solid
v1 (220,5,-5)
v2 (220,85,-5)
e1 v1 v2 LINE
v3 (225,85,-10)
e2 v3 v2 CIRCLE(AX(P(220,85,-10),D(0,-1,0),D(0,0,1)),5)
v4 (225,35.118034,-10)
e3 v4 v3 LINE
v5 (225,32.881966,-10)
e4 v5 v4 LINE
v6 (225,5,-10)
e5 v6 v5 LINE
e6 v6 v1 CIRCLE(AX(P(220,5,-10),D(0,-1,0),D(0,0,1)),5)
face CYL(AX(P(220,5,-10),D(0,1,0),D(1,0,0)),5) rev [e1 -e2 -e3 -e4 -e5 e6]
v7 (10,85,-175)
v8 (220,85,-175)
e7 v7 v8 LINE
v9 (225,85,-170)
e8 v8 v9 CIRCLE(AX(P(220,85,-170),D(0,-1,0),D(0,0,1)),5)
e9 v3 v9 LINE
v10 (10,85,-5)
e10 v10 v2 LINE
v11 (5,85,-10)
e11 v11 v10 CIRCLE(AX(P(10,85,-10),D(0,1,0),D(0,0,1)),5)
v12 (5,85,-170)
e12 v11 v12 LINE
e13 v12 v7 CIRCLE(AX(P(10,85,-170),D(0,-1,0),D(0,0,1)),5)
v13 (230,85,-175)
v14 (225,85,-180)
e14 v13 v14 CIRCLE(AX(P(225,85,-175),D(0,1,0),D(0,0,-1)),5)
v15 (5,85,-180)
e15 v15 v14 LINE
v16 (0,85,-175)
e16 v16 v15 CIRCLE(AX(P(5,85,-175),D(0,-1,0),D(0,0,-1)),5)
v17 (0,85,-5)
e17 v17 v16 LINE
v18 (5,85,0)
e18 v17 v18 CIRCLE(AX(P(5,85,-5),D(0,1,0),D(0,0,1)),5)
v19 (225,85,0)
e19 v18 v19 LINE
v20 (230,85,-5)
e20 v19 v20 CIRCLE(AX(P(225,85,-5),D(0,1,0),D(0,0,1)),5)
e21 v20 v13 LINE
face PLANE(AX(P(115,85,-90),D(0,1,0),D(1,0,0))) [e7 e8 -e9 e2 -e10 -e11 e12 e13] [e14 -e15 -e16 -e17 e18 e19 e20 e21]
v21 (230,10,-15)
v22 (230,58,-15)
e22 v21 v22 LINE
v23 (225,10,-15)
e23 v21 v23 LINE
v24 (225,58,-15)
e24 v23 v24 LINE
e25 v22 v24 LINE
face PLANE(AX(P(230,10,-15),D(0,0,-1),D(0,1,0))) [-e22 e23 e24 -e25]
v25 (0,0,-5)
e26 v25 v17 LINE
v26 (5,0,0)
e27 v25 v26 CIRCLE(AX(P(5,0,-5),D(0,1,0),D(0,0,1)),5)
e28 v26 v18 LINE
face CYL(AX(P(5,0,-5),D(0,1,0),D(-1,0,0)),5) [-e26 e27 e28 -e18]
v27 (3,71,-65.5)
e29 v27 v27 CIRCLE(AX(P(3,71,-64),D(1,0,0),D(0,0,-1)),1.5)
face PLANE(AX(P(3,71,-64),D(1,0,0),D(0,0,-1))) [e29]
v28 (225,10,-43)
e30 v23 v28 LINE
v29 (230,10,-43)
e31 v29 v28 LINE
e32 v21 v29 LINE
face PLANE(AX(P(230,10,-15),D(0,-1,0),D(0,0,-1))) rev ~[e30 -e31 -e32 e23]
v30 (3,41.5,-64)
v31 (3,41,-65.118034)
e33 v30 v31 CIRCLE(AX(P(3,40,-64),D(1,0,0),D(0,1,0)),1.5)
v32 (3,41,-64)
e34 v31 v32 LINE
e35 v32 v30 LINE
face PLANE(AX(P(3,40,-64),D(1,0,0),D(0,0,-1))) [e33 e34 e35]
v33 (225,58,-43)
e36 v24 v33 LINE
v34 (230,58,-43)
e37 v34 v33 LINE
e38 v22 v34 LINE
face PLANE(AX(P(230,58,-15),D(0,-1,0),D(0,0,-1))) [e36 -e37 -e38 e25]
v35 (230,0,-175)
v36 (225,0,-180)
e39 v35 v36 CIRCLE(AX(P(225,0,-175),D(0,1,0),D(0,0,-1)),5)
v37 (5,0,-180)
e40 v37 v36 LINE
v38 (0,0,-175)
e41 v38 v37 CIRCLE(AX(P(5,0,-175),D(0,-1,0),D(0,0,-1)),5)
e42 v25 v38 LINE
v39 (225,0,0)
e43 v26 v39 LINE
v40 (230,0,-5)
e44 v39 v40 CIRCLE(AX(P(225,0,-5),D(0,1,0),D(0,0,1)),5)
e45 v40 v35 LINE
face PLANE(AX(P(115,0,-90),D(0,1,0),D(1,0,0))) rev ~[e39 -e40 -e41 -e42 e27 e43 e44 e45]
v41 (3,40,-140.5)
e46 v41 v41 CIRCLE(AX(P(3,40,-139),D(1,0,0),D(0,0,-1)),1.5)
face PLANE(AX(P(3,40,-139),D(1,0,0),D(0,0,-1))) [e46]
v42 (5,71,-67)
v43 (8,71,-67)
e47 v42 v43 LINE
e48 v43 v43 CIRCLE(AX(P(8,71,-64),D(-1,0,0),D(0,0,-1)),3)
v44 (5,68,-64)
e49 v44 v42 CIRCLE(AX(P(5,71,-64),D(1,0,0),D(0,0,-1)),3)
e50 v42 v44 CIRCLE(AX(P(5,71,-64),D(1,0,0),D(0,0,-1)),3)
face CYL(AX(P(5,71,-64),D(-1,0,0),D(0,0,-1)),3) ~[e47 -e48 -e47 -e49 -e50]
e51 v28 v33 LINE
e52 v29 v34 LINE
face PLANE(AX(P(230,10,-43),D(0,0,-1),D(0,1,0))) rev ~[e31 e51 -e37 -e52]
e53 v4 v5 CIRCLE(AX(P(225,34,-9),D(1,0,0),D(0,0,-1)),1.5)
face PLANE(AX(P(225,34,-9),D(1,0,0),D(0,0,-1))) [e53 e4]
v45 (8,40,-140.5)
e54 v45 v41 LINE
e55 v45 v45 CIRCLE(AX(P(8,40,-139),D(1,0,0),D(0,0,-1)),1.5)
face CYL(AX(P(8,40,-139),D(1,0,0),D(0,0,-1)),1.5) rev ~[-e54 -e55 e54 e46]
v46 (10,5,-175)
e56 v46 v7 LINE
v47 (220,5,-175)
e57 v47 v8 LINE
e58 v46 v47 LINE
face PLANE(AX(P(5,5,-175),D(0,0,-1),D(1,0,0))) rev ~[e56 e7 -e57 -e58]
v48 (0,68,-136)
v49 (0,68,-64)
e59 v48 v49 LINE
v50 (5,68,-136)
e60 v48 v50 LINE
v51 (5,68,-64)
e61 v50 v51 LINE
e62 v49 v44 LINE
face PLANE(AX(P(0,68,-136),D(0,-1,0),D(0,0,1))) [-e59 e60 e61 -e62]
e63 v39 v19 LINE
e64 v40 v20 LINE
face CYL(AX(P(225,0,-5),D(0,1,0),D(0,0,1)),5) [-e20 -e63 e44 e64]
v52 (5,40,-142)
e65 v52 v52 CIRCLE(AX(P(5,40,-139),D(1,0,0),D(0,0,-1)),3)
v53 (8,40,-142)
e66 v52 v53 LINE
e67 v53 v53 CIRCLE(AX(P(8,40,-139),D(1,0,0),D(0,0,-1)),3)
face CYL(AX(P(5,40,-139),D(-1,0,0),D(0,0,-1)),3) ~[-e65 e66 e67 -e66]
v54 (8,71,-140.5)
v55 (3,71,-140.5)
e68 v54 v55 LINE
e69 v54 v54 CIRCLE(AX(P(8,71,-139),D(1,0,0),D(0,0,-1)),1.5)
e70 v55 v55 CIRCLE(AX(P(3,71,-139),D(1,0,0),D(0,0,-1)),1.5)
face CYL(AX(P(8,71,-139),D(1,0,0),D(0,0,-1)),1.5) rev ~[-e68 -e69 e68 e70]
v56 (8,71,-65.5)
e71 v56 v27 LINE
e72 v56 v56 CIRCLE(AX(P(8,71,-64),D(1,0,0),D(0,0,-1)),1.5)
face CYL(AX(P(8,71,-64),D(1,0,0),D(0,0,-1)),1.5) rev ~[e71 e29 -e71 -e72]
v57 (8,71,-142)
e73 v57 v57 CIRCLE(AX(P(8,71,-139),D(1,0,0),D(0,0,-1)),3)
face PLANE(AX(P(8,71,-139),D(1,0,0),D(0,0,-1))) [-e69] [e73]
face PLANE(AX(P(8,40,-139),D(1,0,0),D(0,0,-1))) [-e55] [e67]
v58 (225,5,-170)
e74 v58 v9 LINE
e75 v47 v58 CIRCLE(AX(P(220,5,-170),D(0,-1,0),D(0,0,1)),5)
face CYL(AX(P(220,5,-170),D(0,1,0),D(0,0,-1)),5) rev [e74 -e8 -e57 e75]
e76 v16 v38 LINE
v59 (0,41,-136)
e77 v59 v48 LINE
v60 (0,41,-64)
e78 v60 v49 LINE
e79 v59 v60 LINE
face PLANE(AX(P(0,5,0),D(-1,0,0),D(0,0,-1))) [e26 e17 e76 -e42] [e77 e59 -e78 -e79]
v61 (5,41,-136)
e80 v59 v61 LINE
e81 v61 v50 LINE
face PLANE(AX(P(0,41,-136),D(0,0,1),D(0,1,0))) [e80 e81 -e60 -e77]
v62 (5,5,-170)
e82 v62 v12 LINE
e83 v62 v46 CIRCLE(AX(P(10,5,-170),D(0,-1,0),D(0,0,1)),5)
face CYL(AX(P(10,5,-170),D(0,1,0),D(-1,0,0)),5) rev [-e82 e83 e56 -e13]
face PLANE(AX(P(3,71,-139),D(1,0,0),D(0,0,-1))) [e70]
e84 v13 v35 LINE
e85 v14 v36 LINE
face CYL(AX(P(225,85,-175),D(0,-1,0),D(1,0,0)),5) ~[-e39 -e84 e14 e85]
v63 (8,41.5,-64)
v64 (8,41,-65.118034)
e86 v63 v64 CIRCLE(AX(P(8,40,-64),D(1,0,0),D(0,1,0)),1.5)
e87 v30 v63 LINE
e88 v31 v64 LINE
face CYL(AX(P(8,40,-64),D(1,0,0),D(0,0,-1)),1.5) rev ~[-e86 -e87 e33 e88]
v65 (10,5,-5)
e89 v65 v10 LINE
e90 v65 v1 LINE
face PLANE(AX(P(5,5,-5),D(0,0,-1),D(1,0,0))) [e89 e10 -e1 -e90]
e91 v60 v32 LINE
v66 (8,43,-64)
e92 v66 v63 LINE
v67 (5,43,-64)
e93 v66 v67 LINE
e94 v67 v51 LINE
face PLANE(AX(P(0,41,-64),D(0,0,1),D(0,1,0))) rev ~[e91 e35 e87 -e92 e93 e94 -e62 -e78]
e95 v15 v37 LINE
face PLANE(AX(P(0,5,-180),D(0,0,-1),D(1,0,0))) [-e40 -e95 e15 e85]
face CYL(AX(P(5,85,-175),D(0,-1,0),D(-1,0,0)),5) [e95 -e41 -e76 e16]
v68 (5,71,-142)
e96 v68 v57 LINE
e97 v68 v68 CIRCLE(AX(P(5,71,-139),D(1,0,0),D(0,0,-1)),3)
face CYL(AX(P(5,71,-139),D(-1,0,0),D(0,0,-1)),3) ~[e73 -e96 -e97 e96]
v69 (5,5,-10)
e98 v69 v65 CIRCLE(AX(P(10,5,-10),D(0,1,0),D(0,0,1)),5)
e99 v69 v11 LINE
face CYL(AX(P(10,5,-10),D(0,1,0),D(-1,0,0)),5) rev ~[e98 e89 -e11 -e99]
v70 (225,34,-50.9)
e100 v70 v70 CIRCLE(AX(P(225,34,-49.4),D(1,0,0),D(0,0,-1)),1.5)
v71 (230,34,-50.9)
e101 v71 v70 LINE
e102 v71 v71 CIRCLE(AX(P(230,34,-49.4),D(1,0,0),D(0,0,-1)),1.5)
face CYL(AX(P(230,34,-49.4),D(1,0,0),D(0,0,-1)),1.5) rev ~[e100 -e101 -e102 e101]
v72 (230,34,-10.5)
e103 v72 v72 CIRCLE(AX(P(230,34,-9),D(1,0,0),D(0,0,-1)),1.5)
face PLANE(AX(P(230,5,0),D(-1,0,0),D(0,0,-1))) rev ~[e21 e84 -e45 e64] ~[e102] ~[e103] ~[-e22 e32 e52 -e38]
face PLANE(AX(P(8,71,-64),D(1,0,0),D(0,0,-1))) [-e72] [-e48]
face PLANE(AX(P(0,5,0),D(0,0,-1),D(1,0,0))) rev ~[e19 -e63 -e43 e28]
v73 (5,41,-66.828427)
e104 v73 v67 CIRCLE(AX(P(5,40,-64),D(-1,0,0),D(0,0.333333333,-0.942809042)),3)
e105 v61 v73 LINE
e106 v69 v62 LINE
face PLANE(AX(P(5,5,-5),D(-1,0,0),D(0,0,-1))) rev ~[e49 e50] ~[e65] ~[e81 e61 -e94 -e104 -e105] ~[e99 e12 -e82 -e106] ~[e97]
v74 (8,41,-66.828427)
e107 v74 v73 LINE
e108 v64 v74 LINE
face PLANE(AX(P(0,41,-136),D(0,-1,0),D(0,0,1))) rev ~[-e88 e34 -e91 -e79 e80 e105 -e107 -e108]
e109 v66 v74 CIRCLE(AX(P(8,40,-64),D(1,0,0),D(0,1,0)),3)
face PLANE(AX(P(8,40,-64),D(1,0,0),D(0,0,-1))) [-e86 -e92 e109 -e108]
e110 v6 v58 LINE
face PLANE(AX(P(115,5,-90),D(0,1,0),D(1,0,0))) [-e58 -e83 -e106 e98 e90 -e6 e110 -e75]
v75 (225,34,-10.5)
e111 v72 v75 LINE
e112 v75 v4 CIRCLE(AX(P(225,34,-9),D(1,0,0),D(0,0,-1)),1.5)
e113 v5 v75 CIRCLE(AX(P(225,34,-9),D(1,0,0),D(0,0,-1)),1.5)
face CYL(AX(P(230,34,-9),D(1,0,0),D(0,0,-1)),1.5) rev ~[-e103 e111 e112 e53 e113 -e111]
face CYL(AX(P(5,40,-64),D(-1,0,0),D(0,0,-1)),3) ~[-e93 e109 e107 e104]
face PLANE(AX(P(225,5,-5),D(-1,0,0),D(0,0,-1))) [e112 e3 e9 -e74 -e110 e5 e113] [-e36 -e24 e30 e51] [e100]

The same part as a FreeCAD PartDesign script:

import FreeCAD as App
import Part
import Sketcher
from FreeCAD import Vector


def edges_at(feature, points):
    """Names of the edges that pass closest to the given points."""
    edges = feature.Shape.Edges
    near = lambda p: min(range(len(edges)), key=lambda i: edges[i].distToShape(Part.Vertex(*p))[0])
    return sorted({f"Edge{near(p) + 1}" for p in points})


def add_polygon(sketch, points):
    """Adds a closed chain of lines whose ends are joined by coincident constraints."""
    first, n = sketch.GeometryCount, len(points)
    for a, b in zip(points, points[1:] + points[:1]):
        sketch.addGeometry(Part.LineSegment(App.Vector(*a, 0), App.Vector(*b, 0)), False)
    for i in range(n):
        sketch.addConstraint(Sketcher.Constraint("Coincident", first + i, 2, first + (i + 1) % n, 1))

doc = App.newDocument("Part")
body = doc.addObject("PartDesign::Body", "Body")

# Sketch on XZ plane
sketch1 = body.newObject("Sketcher::SketchObject", "Sketch")
sketch1.AttachmentSupport = (doc.getObject("XZ_Plane"), [""])
sketch1.MapMode = "FlatFace"
add_polygon(sketch1, [(0, -180), (0, 0), (230, 0), (230, -180)])  # lines 0-3
sketch1.addConstraint(Sketcher.Constraint("Vertical", 0))
sketch1.addConstraint(Sketcher.Constraint("Horizontal", 1))
sketch1.addConstraint(Sketcher.Constraint("Vertical", 2))
sketch1.addConstraint(Sketcher.Constraint("Horizontal", 3))
sketch1.addConstraint(Sketcher.Constraint("Coincident", 0, 2, -1, 1))
sketch1.addConstraint(Sketcher.Constraint("DistanceX", 1, 1, 1, 2, 230.0))
sketch1.addConstraint(Sketcher.Constraint("DistanceY", 0, 1, 0, 2, 180.0))
pad1 = body.newObject("PartDesign::Pad", "Pad")
pad1.Profile = sketch1
pad1.Length = 5
pad1.Reversed = True

# Sketch on XZ plane
sketch2 = body.newObject("Sketcher::SketchObject", "Sketch001")
sketch2.AttachmentSupport = (doc.getObject("XZ_Plane"), [""])
sketch2.MapMode = "FlatFace"
sketch2.AttachmentOffset = App.Placement(Vector(0, 0, -5), App.Rotation())
add_polygon(sketch2, [(0, -180), (0, 0), (230, 0), (230, -180)])  # lines 0-3
add_polygon(sketch2, [(225, -5), (5, -5), (5, -175), (225, -175)])  # lines 4-7
sketch2.addConstraint(Sketcher.Constraint("Vertical", 0))
sketch2.addConstraint(Sketcher.Constraint("Horizontal", 1))
sketch2.addConstraint(Sketcher.Constraint("Vertical", 2))
sketch2.addConstraint(Sketcher.Constraint("Horizontal", 3))
sketch2.addConstraint(Sketcher.Constraint("Horizontal", 4))
sketch2.addConstraint(Sketcher.Constraint("Vertical", 5))
sketch2.addConstraint(Sketcher.Constraint("Horizontal", 6))
sketch2.addConstraint(Sketcher.Constraint("Vertical", 7))
sketch2.addConstraint(Sketcher.Constraint("Coincident", 0, 2, -1, 1))
sketch2.addConstraint(Sketcher.Constraint("DistanceX", 1, 1, 1, 2, 230.0))
sketch2.addConstraint(Sketcher.Constraint("DistanceX", 4, 2, 4, 1, 220.0))
sketch2.addConstraint(Sketcher.Constraint("DistanceY", 0, 1, 0, 2, 180.0))
sketch2.addConstraint(Sketcher.Constraint("DistanceY", 5, 2, 5, 1, 170.0))
sketch2.addConstraint(Sketcher.Constraint("DistanceX", -1, 1, 4, 2, 5.0))
sketch2.addConstraint(Sketcher.Constraint("DistanceY", 4, 2, -1, 1, 5.0))
pad2 = body.newObject("PartDesign::Pad", "Pad001")
pad2.Profile = sketch2
pad2.Length = 80
pad2.Reversed = True
doc.recompute()

fillet = body.newObject("PartDesign::Fillet", "Fillet")
fillet.Base = (pad2, edges_at(pad2, [
    (225, 45, -5),
    (225, 45, -175),
    (5, 45, -175),
    (5, 45, -5),
    (0, 42.5, -180),
    (230, 42.5, -180),
    (230, 42.5, 0),
    (0, 42.5, 0),
]))
fillet.Radius = 5

# Sketch on YZ plane
sketch3 = body.newObject("Sketcher::SketchObject", "Sketch002")
sketch3.AttachmentSupport = (doc.getObject("YZ_Plane"), [""])
sketch3.MapMode = "FlatFace"
sketch3.AttachmentOffset = App.Placement(Vector(0, 0, 230), App.Rotation())
add_polygon(sketch3, [(58, -15), (10, -15), (10, -43), (58, -43)])  # lines 0-3
sketch3.addConstraint(Sketcher.Constraint("Horizontal", 0))
sketch3.addConstraint(Sketcher.Constraint("Vertical", 1))
sketch3.addConstraint(Sketcher.Constraint("Horizontal", 2))
sketch3.addConstraint(Sketcher.Constraint("Vertical", 3))
sketch3.addConstraint(Sketcher.Constraint("DistanceX", 0, 2, 0, 1, 48.0))
sketch3.addConstraint(Sketcher.Constraint("DistanceY", 1, 2, 1, 1, 28.0))
sketch3.addConstraint(Sketcher.Constraint("DistanceX", -1, 1, 0, 2, 10.0))
sketch3.addConstraint(Sketcher.Constraint("DistanceY", 0, 2, -1, 1, 15.0))
pocket1 = body.newObject("PartDesign::Pocket", "Pocket")
pocket1.Profile = sketch3
pocket1.Length = 5

# Sketch on YZ plane
sketch4 = body.newObject("Sketcher::SketchObject", "Sketch003")
sketch4.AttachmentSupport = (doc.getObject("YZ_Plane"), [""])
sketch4.MapMode = "FlatFace"
sketch4.AttachmentOffset = App.Placement(Vector(0, 0, 230), App.Rotation())
sketch4.addGeometry(Part.Circle(Vector(34, -9, 0), Vector(0, 0, 1), 1.5), False)
sketch4.addGeometry(Part.Circle(Vector(34, -49.4, 0), Vector(0, 0, 1), 1.5), False)
sketch4.addConstraint(Sketcher.Constraint("Equal", 0, 1))
sketch4.addConstraint(Sketcher.Constraint("Vertical", 0, 3, 1, 3))
sketch4.addConstraint(Sketcher.Constraint("Diameter", 0, 3.0))
sketch4.addConstraint(Sketcher.Constraint("DistanceX", -1, 1, 0, 3, 34.0))
sketch4.addConstraint(Sketcher.Constraint("DistanceY", 0, 3, -1, 1, 9.0))
sketch4.addConstraint(Sketcher.Constraint("DistanceY", 1, 3, -1, 1, 49.4))
pocket2 = body.newObject("PartDesign::Pocket", "Pocket001")
pocket2.Profile = sketch4
pocket2.Length = 5

# Sketch on YZ plane
sketch5 = body.newObject("Sketcher::SketchObject", "Sketch004")
sketch5.AttachmentSupport = (doc.getObject("YZ_Plane"), [""])
sketch5.MapMode = "FlatFace"
sketch5.AttachmentOffset = App.Placement(Vector(0, 0, 5), App.Rotation())
sketch5.addGeometry(Part.Circle(Vector(40, -139, 0), Vector(0, 0, 1), 3), False)
sketch5.addGeometry(Part.Circle(Vector(71, -139, 0), Vector(0, 0, 1), 3), False)
sketch5.addGeometry(Part.Circle(Vector(71, -64, 0), Vector(0, 0, 1), 3), False)
sketch5.addGeometry(Part.Circle(Vector(40, -64, 0), Vector(0, 0, 1), 3), False)
sketch5.addConstraint(Sketcher.Constraint("Equal", 0, 1))
sketch5.addConstraint(Sketcher.Constraint("Equal", 1, 2))
sketch5.addConstraint(Sketcher.Constraint("Equal", 2, 3))
sketch5.addConstraint(Sketcher.Constraint("Horizontal", 0, 3, 1, 3))
sketch5.addConstraint(Sketcher.Constraint("Horizontal", 2, 3, 3, 3))
sketch5.addConstraint(Sketcher.Constraint("Vertical", 1, 3, 2, 3))
sketch5.addConstraint(Sketcher.Constraint("Vertical", 0, 3, 3, 3))
sketch5.addConstraint(Sketcher.Constraint("Diameter", 0, 6.0))
sketch5.addConstraint(Sketcher.Constraint("DistanceX", -1, 1, 0, 3, 40.0))
sketch5.addConstraint(Sketcher.Constraint("DistanceY", 0, 3, -1, 1, 139.0))
sketch5.addConstraint(Sketcher.Constraint("DistanceX", -1, 1, 1, 3, 71.0))
sketch5.addConstraint(Sketcher.Constraint("DistanceY", 2, 3, -1, 1, 64.0))
pad3 = body.newObject("PartDesign::Pad", "Pad002")
pad3.Profile = sketch5
pad3.Length = 3

# Sketch on YZ plane
sketch6 = body.newObject("Sketcher::SketchObject", "Sketch005")
sketch6.AttachmentSupport = (doc.getObject("YZ_Plane"), [""])
sketch6.MapMode = "FlatFace"
add_polygon(sketch6, [(68, -136), (41, -136), (41, -64), (68, -64)])  # lines 0-3
sketch6.addConstraint(Sketcher.Constraint("Horizontal", 0))
sketch6.addConstraint(Sketcher.Constraint("Vertical", 1))
sketch6.addConstraint(Sketcher.Constraint("Horizontal", 2))
sketch6.addConstraint(Sketcher.Constraint("Vertical", 3))
sketch6.addConstraint(Sketcher.Constraint("DistanceX", 0, 2, 0, 1, 27.0))
sketch6.addConstraint(Sketcher.Constraint("DistanceY", 1, 1, 1, 2, 72.0))
sketch6.addConstraint(Sketcher.Constraint("DistanceX", -1, 1, 0, 2, 41.0))
sketch6.addConstraint(Sketcher.Constraint("DistanceY", 0, 2, -1, 1, 136.0))
pocket3 = body.newObject("PartDesign::Pocket", "Pocket002")
pocket3.Profile = sketch6
pocket3.Length = 10
pocket3.Reversed = True

# Sketch on YZ plane
sketch7 = body.newObject("Sketcher::SketchObject", "Sketch006")
sketch7.AttachmentSupport = (doc.getObject("YZ_Plane"), [""])
sketch7.MapMode = "FlatFace"
sketch7.AttachmentOffset = App.Placement(Vector(0, 0, 8), App.Rotation())
sketch7.addGeometry(Part.Circle(Vector(40, -64, 0), Vector(0, 0, 1), 1.5), False)
sketch7.addGeometry(Part.Circle(Vector(40, -139, 0), Vector(0, 0, 1), 1.5), False)
sketch7.addGeometry(Part.Circle(Vector(71, -139, 0), Vector(0, 0, 1), 1.5), False)
sketch7.addGeometry(Part.Circle(Vector(71, -64, 0), Vector(0, 0, 1), 1.5), False)
sketch7.addConstraint(Sketcher.Constraint("Equal", 0, 1))
sketch7.addConstraint(Sketcher.Constraint("Equal", 1, 2))
sketch7.addConstraint(Sketcher.Constraint("Equal", 2, 3))
sketch7.addConstraint(Sketcher.Constraint("Horizontal", 1, 3, 2, 3))
sketch7.addConstraint(Sketcher.Constraint("Horizontal", 0, 3, 3, 3))
sketch7.addConstraint(Sketcher.Constraint("Vertical", 0, 3, 1, 3))
sketch7.addConstraint(Sketcher.Constraint("Vertical", 2, 3, 3, 3))
sketch7.addConstraint(Sketcher.Constraint("Diameter", 0, 3.0))
sketch7.addConstraint(Sketcher.Constraint("DistanceX", -1, 1, 0, 3, 40.0))
sketch7.addConstraint(Sketcher.Constraint("DistanceY", 0, 3, -1, 1, 64.0))
sketch7.addConstraint(Sketcher.Constraint("DistanceY", 1, 3, -1, 1, 139.0))
sketch7.addConstraint(Sketcher.Constraint("DistanceX", -1, 1, 2, 3, 71.0))
pocket4 = body.newObject("PartDesign::Pocket", "Pocket003")
pocket4.Profile = sketch7
pocket4.Length = 5

doc.recompute()
